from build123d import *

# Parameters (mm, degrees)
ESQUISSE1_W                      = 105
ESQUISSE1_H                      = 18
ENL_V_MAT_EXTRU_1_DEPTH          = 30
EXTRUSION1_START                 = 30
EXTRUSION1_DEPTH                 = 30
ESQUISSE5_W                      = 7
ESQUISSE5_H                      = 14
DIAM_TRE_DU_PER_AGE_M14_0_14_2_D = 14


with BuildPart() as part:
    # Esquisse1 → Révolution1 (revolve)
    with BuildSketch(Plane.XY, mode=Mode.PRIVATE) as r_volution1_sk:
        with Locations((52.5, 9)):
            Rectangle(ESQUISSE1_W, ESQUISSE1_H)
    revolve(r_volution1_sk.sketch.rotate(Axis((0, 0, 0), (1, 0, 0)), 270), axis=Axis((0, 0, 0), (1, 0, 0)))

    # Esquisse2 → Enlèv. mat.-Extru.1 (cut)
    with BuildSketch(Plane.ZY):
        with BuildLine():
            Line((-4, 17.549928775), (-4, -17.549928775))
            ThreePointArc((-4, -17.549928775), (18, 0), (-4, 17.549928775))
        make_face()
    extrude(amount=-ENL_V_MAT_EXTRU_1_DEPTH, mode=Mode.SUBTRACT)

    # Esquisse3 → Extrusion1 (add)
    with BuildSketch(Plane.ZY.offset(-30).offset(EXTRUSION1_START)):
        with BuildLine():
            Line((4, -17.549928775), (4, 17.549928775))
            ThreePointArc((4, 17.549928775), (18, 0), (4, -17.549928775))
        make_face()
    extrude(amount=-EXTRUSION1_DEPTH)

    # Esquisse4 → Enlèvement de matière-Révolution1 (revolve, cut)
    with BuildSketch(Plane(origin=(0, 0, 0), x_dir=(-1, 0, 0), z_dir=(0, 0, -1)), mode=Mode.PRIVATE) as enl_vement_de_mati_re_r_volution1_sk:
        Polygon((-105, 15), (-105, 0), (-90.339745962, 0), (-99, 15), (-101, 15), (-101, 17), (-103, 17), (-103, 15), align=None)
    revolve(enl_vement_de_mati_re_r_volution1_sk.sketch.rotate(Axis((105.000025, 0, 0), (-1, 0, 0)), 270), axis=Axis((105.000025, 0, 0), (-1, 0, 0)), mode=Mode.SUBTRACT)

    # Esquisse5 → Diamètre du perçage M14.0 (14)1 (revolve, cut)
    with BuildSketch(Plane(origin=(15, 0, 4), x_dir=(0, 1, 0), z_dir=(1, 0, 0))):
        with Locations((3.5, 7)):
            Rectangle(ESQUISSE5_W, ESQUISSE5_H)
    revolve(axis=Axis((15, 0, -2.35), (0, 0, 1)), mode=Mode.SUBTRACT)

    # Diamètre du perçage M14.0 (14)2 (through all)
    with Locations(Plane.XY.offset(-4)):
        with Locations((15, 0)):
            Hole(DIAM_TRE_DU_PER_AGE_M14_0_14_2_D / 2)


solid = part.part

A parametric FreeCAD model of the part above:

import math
import FreeCAD as App
import Part
import Sketcher
Q = App.Units.Quantity


def add_polygon(sketch, points):
    """Adds a closed chain of lines whose ends are joined by coincident constraints."""
    first, n = sketch.GeometryCount, len(points)
    for a, b in zip(points, points[1:] + points[:1]):
        sketch.addGeometry(Part.LineSegment(App.Vector(*a, 0), App.Vector(*b, 0)), False)
    for i in range(n):
        sketch.addConstraint(Sketcher.Constraint("Coincident", first + i, 2, first + (i + 1) % n, 1))

doc = App.newDocument("Part")
body = doc.addObject("PartDesign::Body", "Body")

# Sketch on XY plane
sketch1 = body.newObject("Sketcher::SketchObject", "Sketch")
sketch1.AttachmentSupport = (doc.getObject("XY_Plane"), [""])
sketch1.MapMode = "FlatFace"
add_polygon(sketch1, [(0, 18), (0, 0), (105, 0), (105, 18)])  # lines 0-3
sketch1.addConstraint([
    Sketcher.Constraint("Vertical", 0),
    Sketcher.Constraint("Horizontal", 1),
    Sketcher.Constraint("Vertical", 2),
    Sketcher.Constraint("Horizontal", 3),
    Sketcher.Constraint("Coincident", 0, 2, -1, 1),
    Sketcher.Constraint("DistanceX", 1, 1, 1, 2, Q("105 mm")),
    Sketcher.Constraint("DistanceY", 0, 2, 0, 1, Q("18 mm")),
])
revolution = body.newObject("PartDesign::Revolution", "Revolution")
revolution.Profile = sketch1
revolution.ReferenceAxis = (sketch1, ["H_Axis"])
revolution.Angle = 360

# Sketch on YZ plane
sketch2 = body.newObject("Sketcher::SketchObject", "Sketch001")
sketch2.AttachmentSupport = (doc.getObject("YZ_Plane"), [""])
sketch2.MapMode = "FlatFace"
sketch2.addGeometry([
    Part.LineSegment(App.Vector(17.549929, -4, 0), App.Vector(-17.549929, -4, 0)),
    Part.ArcOfCircle(Part.Circle(App.Vector(0, 0, 0), App.Vector(0, 0, 1), 18), math.radians(-12.839588), math.radians(192.839588)),
], False)
sketch2.addConstraint([
    Sketcher.Constraint("Coincident", 0, 1, 1, 1),
    Sketcher.Constraint("Coincident", 1, 2, 0, 2),
    Sketcher.Constraint("Horizontal", 0),
    Sketcher.Constraint("Coincident", 1, 3, -1, 1),
    Sketcher.Constraint("Radius", 1, Q("18 mm")),
    Sketcher.Constraint("DistanceY", 0, 1, -1, 1, Q("4 mm")),
])
pocket1 = body.newObject("PartDesign::Pocket", "Pocket")
pocket1.Profile = sketch2
pocket1.Length = 30
pocket1.Reversed = True

# Sketch on YZ plane
sketch3 = body.newObject("Sketcher::SketchObject", "Sketch002")
sketch3.AttachmentSupport = (doc.getObject("YZ_Plane"), [""])
sketch3.MapMode = "FlatFace"
sketch3.addGeometry([
    Part.LineSegment(App.Vector(17.549929, 4, 0), App.Vector(-17.549929, 4, 0)),
    Part.ArcOfCircle(Part.Circle(App.Vector(0, 0, 0), App.Vector(0, 0, 1), 18), math.radians(12.839588), math.radians(167.160412)),
], False)
sketch3.addConstraint([
    Sketcher.Constraint("Coincident", 0, 1, 1, 1),
    Sketcher.Constraint("Coincident", 1, 2, 0, 2),
    Sketcher.Constraint("Horizontal", 0),
    Sketcher.Constraint("Coincident", 1, 3, -1, 1),
    Sketcher.Constraint("Radius", 1, Q("18 mm")),
    Sketcher.Constraint("DistanceY", -1, 1, 0, 1, Q("4 mm")),
])
pad1 = body.newObject("PartDesign::Pad", "Pad")
pad1.Profile = sketch3
pad1.Length = 30

# Sketch on XY plane
sketch4 = body.newObject("Sketcher::SketchObject", "Sketch003")
sketch4.AttachmentSupport = (doc.getObject("XY_Plane"), [""])
sketch4.MapMode = "FlatFace"
add_polygon(sketch4, [(105, 15), (105, 0), (90.339746, 0), (99, 15), (101, 15), (101, 17), (103, 17), (103, 15)])  # lines 0-7
sketch4.addConstraint([
    Sketcher.Constraint("Vertical", 0),
    Sketcher.Constraint("Horizontal", 1),
    Sketcher.Constraint("Horizontal", 3),
    Sketcher.Constraint("Vertical", 4),
    Sketcher.Constraint("Horizontal", 5),
    Sketcher.Constraint("Vertical", 6),
    Sketcher.Constraint("Horizontal", 7),
    Sketcher.Constraint("PointOnObject", 0, 2, -1),
    Sketcher.Constraint("Horizontal", 3, 2, 6, 2),
    Sketcher.Constraint("Equal", 3, 5),
    Sketcher.Constraint("Equal", 5, 7),
    Sketcher.Constraint("Equal", 7, 4),
    Sketcher.Constraint("DistanceX", 3, 1, 3, 2, Q("2 mm")),
    Sketcher.Constraint("DistanceY", 0, 2, 0, 1, Q("15 mm")),
    Sketcher.Constraint("Angle", 2, Q("60 deg")),
    Sketcher.Constraint("DistanceX", -1, 1, 0, 2, Q("105 mm")),
])
groove = body.newObject("PartDesign::Groove", "Groove")
groove.Profile = sketch4
groove.ReferenceAxis = (sketch4, ["H_Axis"])
groove.Angle = 360

# Sketch on YZ plane
sketch5 = body.newObject("Sketcher::SketchObject", "Sketch004")
sketch5.AttachmentSupport = (doc.getObject("YZ_Plane"), [""])
sketch5.MapMode = "FlatFace"
sketch5.AttachmentOffset = App.Placement(App.Vector(0, 0, 15), App.Rotation())
add_polygon(sketch5, [(0, 18), (0, 4), (7, 4), (7, 18)])  # lines 0-3
sketch5.addConstraint([
    Sketcher.Constraint("Vertical", 0),
    Sketcher.Constraint("Horizontal", 1),
    Sketcher.Constraint("Vertical", 2),
    Sketcher.Constraint("Horizontal", 3),
    Sketcher.Constraint("PointOnObject", 0, 2, -2),
    Sketcher.Constraint("DistanceX", 1, 1, 1, 2, Q("7 mm")),
    Sketcher.Constraint("DistanceY", 0, 2, 0, 1, Q("14 mm")),
    Sketcher.Constraint("DistanceY", -1, 1, 0, 2, Q("4 mm")),
])
groove2 = body.newObject("PartDesign::Groove", "Groove001")
groove2.Profile = sketch5
groove2.ReferenceAxis = (sketch5, ["V_Axis"])
groove2.Angle = 360

# Sketch on XY plane
sketch6 = body.newObject("Sketcher::SketchObject", "Sketch005")
sketch6.AttachmentSupport = (doc.getObject("XY_Plane"), [""])
sketch6.MapMode = "FlatFace"
sketch6.AttachmentOffset = App.Placement(App.Vector(0, 0, -4), App.Rotation())
sketch6.addGeometry(Part.Circle(App.Vector(15, 0, 0), App.Vector(0, 0, 1), 7), False)
sketch6.addConstraint([
    Sketcher.Constraint("PointOnObject", 0, 3, -1),
    Sketcher.Constraint("Diameter", 0, Q("14 mm")),
    Sketcher.Constraint("DistanceX", -1, 1, 0, 3, Q("15 mm")),
])
doc.recompute()
hole = body.newObject("PartDesign::Hole", "Hole")
hole.Profile = sketch6
hole.ThreadType = "None"
hole.Diameter = 14
hole.DepthType = "ThroughAll"

doc.recompute()
